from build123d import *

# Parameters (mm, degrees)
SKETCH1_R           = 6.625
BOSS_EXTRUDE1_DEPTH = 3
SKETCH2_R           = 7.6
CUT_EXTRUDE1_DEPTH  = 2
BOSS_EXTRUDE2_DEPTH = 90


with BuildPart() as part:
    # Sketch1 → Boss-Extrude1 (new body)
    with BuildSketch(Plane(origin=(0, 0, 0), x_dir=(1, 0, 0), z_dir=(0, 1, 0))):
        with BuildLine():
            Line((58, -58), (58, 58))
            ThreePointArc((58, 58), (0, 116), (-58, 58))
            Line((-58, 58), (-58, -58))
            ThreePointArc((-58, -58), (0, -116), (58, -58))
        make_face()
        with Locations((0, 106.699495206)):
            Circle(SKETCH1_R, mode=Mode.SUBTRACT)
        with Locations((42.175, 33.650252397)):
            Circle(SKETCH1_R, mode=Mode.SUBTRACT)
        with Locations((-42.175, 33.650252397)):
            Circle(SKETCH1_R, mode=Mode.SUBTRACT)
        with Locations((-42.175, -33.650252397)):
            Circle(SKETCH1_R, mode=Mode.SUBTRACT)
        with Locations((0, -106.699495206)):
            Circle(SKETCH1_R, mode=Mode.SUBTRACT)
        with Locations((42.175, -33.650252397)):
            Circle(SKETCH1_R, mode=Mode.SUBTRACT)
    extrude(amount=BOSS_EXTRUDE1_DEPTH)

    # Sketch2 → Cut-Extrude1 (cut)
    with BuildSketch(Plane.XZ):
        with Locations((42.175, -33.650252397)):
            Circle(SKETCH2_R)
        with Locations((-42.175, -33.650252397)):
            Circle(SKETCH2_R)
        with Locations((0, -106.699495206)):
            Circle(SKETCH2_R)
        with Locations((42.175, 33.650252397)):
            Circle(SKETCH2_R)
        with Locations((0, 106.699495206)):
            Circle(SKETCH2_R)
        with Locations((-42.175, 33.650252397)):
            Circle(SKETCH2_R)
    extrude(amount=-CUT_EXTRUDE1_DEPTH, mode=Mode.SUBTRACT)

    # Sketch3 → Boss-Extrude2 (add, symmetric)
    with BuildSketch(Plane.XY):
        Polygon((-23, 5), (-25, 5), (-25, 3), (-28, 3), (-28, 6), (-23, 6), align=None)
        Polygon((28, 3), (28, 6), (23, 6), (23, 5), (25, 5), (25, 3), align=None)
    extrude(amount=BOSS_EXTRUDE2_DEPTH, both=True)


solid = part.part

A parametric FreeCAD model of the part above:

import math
import FreeCAD as App
import Part
import Sketcher
Q = App.Units.Quantity


def add_polygon(sketch, points):
    """Adds a closed chain of lines whose ends are joined by coincident constraints."""
    first, n = sketch.GeometryCount, len(points)
    for a, b in zip(points, points[1:] + points[:1]):
        sketch.addGeometry(Part.LineSegment(App.Vector(*a, 0), App.Vector(*b, 0)), False)
    for i in range(n):
        sketch.addConstraint(Sketcher.Constraint("Coincident", first + i, 2, first + (i + 1) % n, 1))

doc = App.newDocument("Part")
params = doc.addObject("Spreadsheet::Sheet", "Params")
for row, (alias, value) in enumerate([
    ("sketch1_radius", "58 mm"),
    ("sketch1_diameter", "13.25 mm"),
    ("sketch1_height", "116 mm"),
    ("pad1_length", "3 mm"),
    ("sketch2_diameter", "15.2 mm"),
    ("pocket1_length", "2 mm"),
    ("sketch3_width", "2 mm"),
    ("sketch3_width2", "5 mm"),
    ("pad2_length", "180 mm"),
], start=1):
    params.set(f"A{row}", alias)
    params.set(f"B{row}", "=" + value)
    params.setAlias(f"B{row}", alias)

body = doc.addObject("PartDesign::Body", "Body")

sketch1 = body.newObject("Sketcher::SketchObject", "Sketch")
sketch1.AttachmentSupport = (doc.getObject("XZ_Plane"), [""])
sketch1.MapMode = "FlatFace"
sketch1.addGeometry([
    Part.LineSegment(App.Vector(58, 58, 0), App.Vector(58, -58, 0)),
    Part.ArcOfCircle(Part.Circle(App.Vector(0, -58, 0), App.Vector(0, 0, 1), 58), math.radians(180), math.radians(360)),
    Part.LineSegment(App.Vector(-58, -58, 0), App.Vector(-58, 58, 0)),
    Part.ArcOfCircle(Part.Circle(App.Vector(0, 58, 0), App.Vector(0, 0, 1), 58), math.radians(0), math.radians(180)),
    Part.Circle(App.Vector(-42.175, 33.650252, 0), App.Vector(0, 0, 1), 6.625),
    Part.Circle(App.Vector(0, 106.699495, 0), App.Vector(0, 0, 1), 6.625),
    Part.Circle(App.Vector(42.175, 33.650252, 0), App.Vector(0, 0, 1), 6.625),
    Part.Circle(App.Vector(-42.175, -33.650252, 0), App.Vector(0, 0, 1), 6.625),
    Part.Circle(App.Vector(42.175, -33.650252, 0), App.Vector(0, 0, 1), 6.625),
    Part.Circle(App.Vector(0, -106.699495, 0), App.Vector(0, 0, 1), 6.625),
], False)
sketch1.addConstraint([
    Sketcher.Constraint("Tangent", 0, 2, 1, 2),
    Sketcher.Constraint("Tangent", 1, 1, 2, 1),
    Sketcher.Constraint("Tangent", 2, 2, 3, 2),
    Sketcher.Constraint("Tangent", 3, 1, 0, 1),
    Sketcher.Constraint("Vertical", 0),
    Sketcher.Constraint("Vertical", 2),
    Sketcher.Constraint("Equal", 4, 5),
    Sketcher.Constraint("Equal", 5, 6),
    Sketcher.Constraint("Equal", 6, 7),
    Sketcher.Constraint("Equal", 7, 8),
    Sketcher.Constraint("Equal", 8, 9),
    Sketcher.Constraint("Symmetric", 1, 3, 3, 3, -1, 1),
    Sketcher.Constraint("Symmetric", 6, 3, 7, 3, -1, 1),
    Sketcher.Constraint("Symmetric", 4, 3, 8, 3, -1, 1),
    Sketcher.Constraint("Symmetric", 5, 3, 9, 3, -1, 1),
    Sketcher.Constraint("Symmetric", 4, 3, 6, 3, -2),
    Sketcher.Constraint("PointOnObject", 5, 3, -2),
    Sketcher.Constraint("Radius", 1, Q("58 mm")),
    Sketcher.Constraint("Diameter", 4, Q("13.25 mm")),
    Sketcher.Constraint("DistanceY", 0, 2, 0, 1, Q("116 mm")),
    Sketcher.Constraint("DistanceX", 4, 3, 6, 3, Q("84.35 mm")),
    Sketcher.Constraint("DistanceY", -1, 1, 4, 3, Q("33.650252 mm")),
    Sketcher.Constraint("DistanceY", -1, 1, 5, 3, Q("106.699495 mm")),
])
sketch1.setExpression("Constraints[17]", "Params.sketch1_radius")
sketch1.setExpression("Constraints[18]", "Params.sketch1_diameter")
sketch1.setExpression("Constraints[19]", "Params.sketch1_height")
pad1 = body.newObject("PartDesign::Pad", "Pad")
pad1.Profile = sketch1
pad1.setExpression("Length", "Params.pad1_length")
pad1.Reversed = True

sketch2 = body.newObject("Sketcher::SketchObject", "Sketch001")
sketch2.AttachmentSupport = (doc.getObject("XZ_Plane"), [""])
sketch2.MapMode = "FlatFace"
sketch2.addGeometry([
    Part.Circle(App.Vector(42.175, -33.650252, 0), App.Vector(0, 0, 1), 7.6),
    Part.Circle(App.Vector(-42.175, -33.650252, 0), App.Vector(0, 0, 1), 7.6),
    Part.Circle(App.Vector(0, -106.699495, 0), App.Vector(0, 0, 1), 7.6),
    Part.Circle(App.Vector(42.175, 33.650252, 0), App.Vector(0, 0, 1), 7.6),
    Part.Circle(App.Vector(0, 106.699495, 0), App.Vector(0, 0, 1), 7.6),
    Part.Circle(App.Vector(-42.175, 33.650252, 0), App.Vector(0, 0, 1), 7.6),
], False)
sketch2.addConstraint([
    Sketcher.Constraint("Equal", 0, 1),
    Sketcher.Constraint("Equal", 1, 2),
    Sketcher.Constraint("Equal", 2, 3),
    Sketcher.Constraint("Equal", 3, 4),
    Sketcher.Constraint("Equal", 4, 5),
    Sketcher.Constraint("Symmetric", 1, 3, 3, 3, -1, 1),
    Sketcher.Constraint("Symmetric", 2, 3, 4, 3, -1, 1),
    Sketcher.Constraint("Symmetric", 0, 3, 5, 3, -1, 1),
    Sketcher.Constraint("Symmetric", 0, 3, 1, 3, -2),
    Sketcher.Constraint("PointOnObject", 2, 3, -2),
    Sketcher.Constraint("Diameter", 0, Q("15.2 mm")),
    Sketcher.Constraint("DistanceX", 1, 3, 0, 3, Q("84.35 mm")),
    Sketcher.Constraint("DistanceY", 2, 3, 4, 3, Q("213.39899 mm")),
    Sketcher.Constraint("DistanceY", 0, 3, -1, 1, Q("33.650252 mm")),
])
sketch2.setExpression("Constraints[10]", "Params.sketch2_diameter")
pocket1 = body.newObject("PartDesign::Pocket", "Pocket")
pocket1.Profile = sketch2
pocket1.setExpression("Length", "Params.pocket1_length")

sketch3 = body.newObject("Sketcher::SketchObject", "Sketch002")
sketch3.AttachmentSupport = (doc.getObject("XY_Plane"), [""])
sketch3.MapMode = "FlatFace"
add_polygon(sketch3, [(-25, 5), (-23, 5), (-23, 6), (-28, 6), (-28, 3), (-25, 3)])
add_polygon(sketch3, [(28, 3), (28, 6), (23, 6), (23, 5), (25, 5), (25, 3)])
sketch3.addConstraint([
    Sketcher.Constraint("Horizontal", 0),
    Sketcher.Constraint("Vertical", 1),
    Sketcher.Constraint("Horizontal", 2),
    Sketcher.Constraint("Vertical", 3),
    Sketcher.Constraint("Horizontal", 4),
    Sketcher.Constraint("Vertical", 5),
    Sketcher.Constraint("Vertical", 6),
    Sketcher.Constraint("Horizontal", 7),
    Sketcher.Constraint("Vertical", 8),
    Sketcher.Constraint("Horizontal", 9),
    Sketcher.Constraint("Vertical", 10),
    Sketcher.Constraint("Horizontal", 11),
    Sketcher.Constraint("Symmetric", 2, 2, 6, 2, -2),
    Sketcher.Constraint("Symmetric", 0, 2, 8, 2, -2),
    Sketcher.Constraint("Symmetric", 4, 2, 10, 2, -2),
    Sketcher.Constraint("Equal", 11, 3),
    Sketcher.Constraint("Equal", 9, 5),
    Sketcher.Constraint("DistanceX", 0, 1, 0, 2, Q("2 mm")),
    Sketcher.Constraint("DistanceX", 2, 2, 2, 1, Q("5 mm")),
    Sketcher.Constraint("DistanceX", 0, 2, -1, 1, Q("23 mm")),
    Sketcher.Constraint("DistanceY", -1, 1, 0, 2, Q("5 mm")),
])
sketch3.setExpression("Constraints[29]", "Params.sketch3_width")
sketch3.setExpression("Constraints[30]", "Params.sketch3_width2")
pad2 = body.newObject("PartDesign::Pad", "Pad001")
pad2.Profile = sketch3
pad2.setExpression("Length", "Params.pad2_length")
pad2.Midplane = True

doc.recompute()
